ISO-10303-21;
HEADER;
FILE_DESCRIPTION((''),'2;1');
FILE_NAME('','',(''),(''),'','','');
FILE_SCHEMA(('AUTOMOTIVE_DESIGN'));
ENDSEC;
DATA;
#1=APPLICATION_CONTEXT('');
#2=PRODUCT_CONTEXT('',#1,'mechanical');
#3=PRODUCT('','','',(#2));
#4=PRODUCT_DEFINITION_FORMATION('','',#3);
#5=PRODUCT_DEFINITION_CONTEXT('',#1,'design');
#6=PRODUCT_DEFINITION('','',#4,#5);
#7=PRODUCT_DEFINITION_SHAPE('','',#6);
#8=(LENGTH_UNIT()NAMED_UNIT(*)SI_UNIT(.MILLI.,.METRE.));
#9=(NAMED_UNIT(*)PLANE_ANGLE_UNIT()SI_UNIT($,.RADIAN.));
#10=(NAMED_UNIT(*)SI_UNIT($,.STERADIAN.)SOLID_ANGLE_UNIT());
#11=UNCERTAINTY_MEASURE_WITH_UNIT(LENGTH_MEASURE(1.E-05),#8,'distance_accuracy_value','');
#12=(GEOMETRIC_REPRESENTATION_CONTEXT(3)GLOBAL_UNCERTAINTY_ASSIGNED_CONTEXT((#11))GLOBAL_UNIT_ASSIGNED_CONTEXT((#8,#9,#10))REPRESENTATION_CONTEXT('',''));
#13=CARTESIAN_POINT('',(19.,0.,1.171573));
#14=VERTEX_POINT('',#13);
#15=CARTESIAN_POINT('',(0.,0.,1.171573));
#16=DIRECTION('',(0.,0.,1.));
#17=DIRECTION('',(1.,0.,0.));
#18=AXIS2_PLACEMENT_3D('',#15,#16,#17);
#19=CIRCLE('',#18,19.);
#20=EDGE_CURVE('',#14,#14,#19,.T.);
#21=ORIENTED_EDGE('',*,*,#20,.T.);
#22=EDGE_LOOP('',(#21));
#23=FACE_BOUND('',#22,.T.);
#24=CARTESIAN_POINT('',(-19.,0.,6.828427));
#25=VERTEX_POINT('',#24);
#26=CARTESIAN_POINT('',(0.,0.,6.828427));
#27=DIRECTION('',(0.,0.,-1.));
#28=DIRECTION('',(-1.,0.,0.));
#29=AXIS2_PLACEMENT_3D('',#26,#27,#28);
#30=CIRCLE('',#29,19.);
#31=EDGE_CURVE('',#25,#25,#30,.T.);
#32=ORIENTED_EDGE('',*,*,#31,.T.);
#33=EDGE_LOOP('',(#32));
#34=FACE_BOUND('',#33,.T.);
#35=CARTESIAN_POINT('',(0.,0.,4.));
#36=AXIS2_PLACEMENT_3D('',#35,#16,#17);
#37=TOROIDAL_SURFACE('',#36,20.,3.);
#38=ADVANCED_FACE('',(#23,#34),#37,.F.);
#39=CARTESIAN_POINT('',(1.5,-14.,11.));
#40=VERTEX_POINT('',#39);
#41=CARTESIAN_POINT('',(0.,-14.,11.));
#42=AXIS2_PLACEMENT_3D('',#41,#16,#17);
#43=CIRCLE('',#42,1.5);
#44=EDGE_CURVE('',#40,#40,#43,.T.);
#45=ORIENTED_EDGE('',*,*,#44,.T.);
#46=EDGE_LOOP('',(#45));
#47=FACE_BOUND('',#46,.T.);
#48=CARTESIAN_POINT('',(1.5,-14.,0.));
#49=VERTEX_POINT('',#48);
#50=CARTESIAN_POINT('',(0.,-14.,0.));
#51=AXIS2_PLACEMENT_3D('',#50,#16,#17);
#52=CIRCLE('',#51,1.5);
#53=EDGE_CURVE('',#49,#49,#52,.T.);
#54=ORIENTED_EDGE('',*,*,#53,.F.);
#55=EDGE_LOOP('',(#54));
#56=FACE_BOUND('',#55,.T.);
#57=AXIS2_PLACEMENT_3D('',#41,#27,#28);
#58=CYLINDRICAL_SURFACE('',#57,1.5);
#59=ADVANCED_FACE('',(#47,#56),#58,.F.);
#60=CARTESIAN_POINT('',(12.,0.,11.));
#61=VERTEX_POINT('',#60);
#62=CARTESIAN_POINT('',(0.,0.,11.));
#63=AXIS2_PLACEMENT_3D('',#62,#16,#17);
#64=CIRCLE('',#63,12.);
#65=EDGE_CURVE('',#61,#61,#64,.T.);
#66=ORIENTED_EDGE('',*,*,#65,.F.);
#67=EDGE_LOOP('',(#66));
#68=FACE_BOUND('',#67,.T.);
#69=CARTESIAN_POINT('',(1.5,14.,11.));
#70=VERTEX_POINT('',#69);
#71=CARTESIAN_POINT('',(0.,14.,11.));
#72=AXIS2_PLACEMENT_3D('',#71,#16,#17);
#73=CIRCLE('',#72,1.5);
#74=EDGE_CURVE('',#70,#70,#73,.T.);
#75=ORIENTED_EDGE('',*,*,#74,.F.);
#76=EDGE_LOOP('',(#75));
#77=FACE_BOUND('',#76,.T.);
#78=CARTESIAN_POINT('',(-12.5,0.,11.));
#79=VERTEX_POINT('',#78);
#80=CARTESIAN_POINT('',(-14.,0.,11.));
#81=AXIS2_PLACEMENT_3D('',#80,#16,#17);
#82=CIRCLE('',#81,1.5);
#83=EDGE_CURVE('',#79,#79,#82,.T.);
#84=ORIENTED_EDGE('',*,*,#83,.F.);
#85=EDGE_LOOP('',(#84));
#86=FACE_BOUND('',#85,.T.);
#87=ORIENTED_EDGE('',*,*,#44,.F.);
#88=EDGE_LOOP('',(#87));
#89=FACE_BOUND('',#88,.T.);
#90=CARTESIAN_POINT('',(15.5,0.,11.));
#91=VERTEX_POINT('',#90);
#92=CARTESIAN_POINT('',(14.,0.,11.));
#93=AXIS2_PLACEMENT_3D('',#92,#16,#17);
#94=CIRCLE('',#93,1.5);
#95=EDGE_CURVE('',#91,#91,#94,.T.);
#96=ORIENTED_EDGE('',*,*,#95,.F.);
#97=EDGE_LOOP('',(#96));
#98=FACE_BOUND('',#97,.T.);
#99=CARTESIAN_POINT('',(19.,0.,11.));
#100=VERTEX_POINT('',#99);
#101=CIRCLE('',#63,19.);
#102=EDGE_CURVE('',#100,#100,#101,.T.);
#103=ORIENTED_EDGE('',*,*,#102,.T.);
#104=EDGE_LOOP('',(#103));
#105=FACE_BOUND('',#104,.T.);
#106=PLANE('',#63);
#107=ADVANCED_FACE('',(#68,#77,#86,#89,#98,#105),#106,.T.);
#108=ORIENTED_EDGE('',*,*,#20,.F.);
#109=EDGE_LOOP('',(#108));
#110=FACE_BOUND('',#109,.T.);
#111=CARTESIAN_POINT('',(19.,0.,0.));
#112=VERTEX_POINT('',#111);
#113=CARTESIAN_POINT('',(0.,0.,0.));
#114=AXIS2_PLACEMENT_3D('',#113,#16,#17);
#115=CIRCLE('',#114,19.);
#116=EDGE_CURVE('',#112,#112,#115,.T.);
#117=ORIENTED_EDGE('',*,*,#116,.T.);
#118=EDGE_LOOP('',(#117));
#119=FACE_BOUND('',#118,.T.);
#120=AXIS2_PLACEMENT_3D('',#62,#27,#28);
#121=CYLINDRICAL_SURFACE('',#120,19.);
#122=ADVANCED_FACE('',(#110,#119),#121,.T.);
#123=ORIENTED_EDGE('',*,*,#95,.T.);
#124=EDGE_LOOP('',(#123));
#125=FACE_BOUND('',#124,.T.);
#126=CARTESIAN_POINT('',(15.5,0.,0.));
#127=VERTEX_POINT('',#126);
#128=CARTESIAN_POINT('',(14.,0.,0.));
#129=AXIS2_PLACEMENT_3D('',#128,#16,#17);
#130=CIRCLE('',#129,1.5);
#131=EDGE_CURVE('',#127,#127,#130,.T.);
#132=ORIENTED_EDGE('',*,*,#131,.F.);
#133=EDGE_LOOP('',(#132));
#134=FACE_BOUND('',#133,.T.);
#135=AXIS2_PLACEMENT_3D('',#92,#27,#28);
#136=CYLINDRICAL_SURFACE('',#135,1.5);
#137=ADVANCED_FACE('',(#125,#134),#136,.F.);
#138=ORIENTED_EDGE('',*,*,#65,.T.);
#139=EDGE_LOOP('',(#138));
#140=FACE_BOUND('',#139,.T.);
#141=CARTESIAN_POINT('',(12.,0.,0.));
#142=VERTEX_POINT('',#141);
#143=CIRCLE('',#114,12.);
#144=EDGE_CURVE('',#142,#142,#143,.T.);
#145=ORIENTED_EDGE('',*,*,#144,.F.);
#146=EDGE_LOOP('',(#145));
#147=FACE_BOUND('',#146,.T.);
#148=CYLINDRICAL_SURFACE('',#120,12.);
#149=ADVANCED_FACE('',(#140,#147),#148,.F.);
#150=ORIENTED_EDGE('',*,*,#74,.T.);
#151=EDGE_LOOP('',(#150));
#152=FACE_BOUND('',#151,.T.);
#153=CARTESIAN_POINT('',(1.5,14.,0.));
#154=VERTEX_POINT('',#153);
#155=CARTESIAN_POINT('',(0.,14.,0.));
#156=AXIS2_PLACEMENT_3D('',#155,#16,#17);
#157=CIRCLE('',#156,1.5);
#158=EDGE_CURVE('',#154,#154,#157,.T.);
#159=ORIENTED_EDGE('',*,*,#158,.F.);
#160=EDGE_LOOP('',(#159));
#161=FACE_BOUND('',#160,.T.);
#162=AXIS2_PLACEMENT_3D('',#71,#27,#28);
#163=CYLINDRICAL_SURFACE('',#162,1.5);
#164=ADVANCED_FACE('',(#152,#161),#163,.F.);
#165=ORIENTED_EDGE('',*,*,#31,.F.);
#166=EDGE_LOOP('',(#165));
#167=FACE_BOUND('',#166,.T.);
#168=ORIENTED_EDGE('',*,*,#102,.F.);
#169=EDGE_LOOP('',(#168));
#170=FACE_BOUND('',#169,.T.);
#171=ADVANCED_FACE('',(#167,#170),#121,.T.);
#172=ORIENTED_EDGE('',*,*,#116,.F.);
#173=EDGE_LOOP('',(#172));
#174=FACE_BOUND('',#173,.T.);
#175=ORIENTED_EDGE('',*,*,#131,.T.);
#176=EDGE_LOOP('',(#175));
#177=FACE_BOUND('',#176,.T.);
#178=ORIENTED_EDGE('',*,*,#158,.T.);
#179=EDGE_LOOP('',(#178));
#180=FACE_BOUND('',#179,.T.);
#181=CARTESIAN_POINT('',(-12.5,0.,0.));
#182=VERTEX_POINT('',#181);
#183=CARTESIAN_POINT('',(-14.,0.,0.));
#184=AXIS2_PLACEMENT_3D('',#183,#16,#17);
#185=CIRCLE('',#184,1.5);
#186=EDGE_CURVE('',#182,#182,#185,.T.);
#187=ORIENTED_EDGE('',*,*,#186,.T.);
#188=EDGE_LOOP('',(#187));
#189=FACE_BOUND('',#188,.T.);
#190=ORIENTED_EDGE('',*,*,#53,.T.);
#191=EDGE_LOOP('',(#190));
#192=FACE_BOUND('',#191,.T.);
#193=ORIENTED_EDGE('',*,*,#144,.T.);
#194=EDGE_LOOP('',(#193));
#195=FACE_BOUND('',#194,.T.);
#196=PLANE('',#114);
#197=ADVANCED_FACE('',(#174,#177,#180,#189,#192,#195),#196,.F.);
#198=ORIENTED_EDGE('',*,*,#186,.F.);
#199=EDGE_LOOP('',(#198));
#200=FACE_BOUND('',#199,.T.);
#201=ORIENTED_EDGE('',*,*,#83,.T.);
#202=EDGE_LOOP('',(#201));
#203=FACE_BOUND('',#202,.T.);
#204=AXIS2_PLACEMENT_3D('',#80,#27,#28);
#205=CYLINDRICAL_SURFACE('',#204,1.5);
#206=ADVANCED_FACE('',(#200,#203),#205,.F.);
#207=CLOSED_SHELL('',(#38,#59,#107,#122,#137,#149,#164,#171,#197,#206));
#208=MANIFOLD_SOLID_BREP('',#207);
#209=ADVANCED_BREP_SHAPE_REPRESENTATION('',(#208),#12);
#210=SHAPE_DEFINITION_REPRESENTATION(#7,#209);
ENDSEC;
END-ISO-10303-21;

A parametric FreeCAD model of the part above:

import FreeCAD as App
import Part
import Sketcher

V = App.Vector

doc = App.newDocument("Part")
body = doc.addObject("PartDesign::Body", "Body")

# Sketch on XY plane
sketch1 = doc.addObject("Sketcher::SketchObject", "Sketch")
body.addObject(sketch1)
sketch1.AttachmentSupport = (doc.XY_Plane, [""])
sketch1.MapMode = "FlatFace"
sketch1.addGeometry([
    Part.Circle(V(0, 0, 0), V(0, 0, 1), 19),  # 0
    Part.Circle(V(0, -14, 0), V(0, 0, 1), 1.5),  # 1
    Part.Circle(V(-14, 0, 0), V(0, 0, 1), 1.5),  # 2
    Part.Circle(V(0, 0, 0), V(0, 0, 1), 12),  # 3
    Part.Circle(V(14, 0, 0), V(0, 0, 1), 1.5),  # 4
    Part.Circle(V(0, 14, 0), V(0, 0, 1), 1.5),  # 5
], False)
sketch1.addConstraint([
    Sketcher.Constraint("Coincident", 0, 3, -1, 1),
    Sketcher.Constraint("Coincident", 3, 3, -1, 1),
    Sketcher.Constraint("Equal", 1, 2),
    Sketcher.Constraint("Equal", 2, 4),
    Sketcher.Constraint("Equal", 4, 5),
    Sketcher.Constraint("Symmetric", 2, 3, 4, 3, -1, 1),
    Sketcher.Constraint("Symmetric", 1, 3, 5, 3, -1, 1),
    Sketcher.Constraint("PointOnObject", 1, 3, -2),
    Sketcher.Constraint("PointOnObject", 2, 3, -1),
    Sketcher.Constraint("Diameter", 0, 38.0),
    Sketcher.Constraint("Diameter", 1, 3.0),
    Sketcher.Constraint("Diameter", 3, 24.0),
    Sketcher.Constraint("DistanceY", 1, 3, -1, 1, 14.0),
    Sketcher.Constraint("DistanceX", 2, 3, -1, 1, 14.0),
])
pad1 = doc.addObject("PartDesign::Pad", "Pad")
body.addObject(pad1)
pad1.Profile = sketch1
pad1.Length = 11

# Sketch on YZ plane
sketch2 = doc.addObject("Sketcher::SketchObject", "Sketch001")
body.addObject(sketch2)
sketch2.AttachmentSupport = (doc.YZ_Plane, [""])
sketch2.MapMode = "FlatFace"
sketch2.addGeometry(Part.Circle(V(20, 4, 0), V(0, 0, 1), 3), False)
sketch2.addConstraint([
    Sketcher.Constraint("Diameter", 0, 6.0),
    Sketcher.Constraint("DistanceX", -1, 1, 0, 3, 20.0),
    Sketcher.Constraint("DistanceY", -1, 1, 0, 3, 4.0),
])
groove = doc.addObject("PartDesign::Groove", "Groove")
body.addObject(groove)
groove.Profile = sketch2
groove.ReferenceAxis = (sketch2, ["V_Axis"])
groove.Angle = 360

doc.recompute()
